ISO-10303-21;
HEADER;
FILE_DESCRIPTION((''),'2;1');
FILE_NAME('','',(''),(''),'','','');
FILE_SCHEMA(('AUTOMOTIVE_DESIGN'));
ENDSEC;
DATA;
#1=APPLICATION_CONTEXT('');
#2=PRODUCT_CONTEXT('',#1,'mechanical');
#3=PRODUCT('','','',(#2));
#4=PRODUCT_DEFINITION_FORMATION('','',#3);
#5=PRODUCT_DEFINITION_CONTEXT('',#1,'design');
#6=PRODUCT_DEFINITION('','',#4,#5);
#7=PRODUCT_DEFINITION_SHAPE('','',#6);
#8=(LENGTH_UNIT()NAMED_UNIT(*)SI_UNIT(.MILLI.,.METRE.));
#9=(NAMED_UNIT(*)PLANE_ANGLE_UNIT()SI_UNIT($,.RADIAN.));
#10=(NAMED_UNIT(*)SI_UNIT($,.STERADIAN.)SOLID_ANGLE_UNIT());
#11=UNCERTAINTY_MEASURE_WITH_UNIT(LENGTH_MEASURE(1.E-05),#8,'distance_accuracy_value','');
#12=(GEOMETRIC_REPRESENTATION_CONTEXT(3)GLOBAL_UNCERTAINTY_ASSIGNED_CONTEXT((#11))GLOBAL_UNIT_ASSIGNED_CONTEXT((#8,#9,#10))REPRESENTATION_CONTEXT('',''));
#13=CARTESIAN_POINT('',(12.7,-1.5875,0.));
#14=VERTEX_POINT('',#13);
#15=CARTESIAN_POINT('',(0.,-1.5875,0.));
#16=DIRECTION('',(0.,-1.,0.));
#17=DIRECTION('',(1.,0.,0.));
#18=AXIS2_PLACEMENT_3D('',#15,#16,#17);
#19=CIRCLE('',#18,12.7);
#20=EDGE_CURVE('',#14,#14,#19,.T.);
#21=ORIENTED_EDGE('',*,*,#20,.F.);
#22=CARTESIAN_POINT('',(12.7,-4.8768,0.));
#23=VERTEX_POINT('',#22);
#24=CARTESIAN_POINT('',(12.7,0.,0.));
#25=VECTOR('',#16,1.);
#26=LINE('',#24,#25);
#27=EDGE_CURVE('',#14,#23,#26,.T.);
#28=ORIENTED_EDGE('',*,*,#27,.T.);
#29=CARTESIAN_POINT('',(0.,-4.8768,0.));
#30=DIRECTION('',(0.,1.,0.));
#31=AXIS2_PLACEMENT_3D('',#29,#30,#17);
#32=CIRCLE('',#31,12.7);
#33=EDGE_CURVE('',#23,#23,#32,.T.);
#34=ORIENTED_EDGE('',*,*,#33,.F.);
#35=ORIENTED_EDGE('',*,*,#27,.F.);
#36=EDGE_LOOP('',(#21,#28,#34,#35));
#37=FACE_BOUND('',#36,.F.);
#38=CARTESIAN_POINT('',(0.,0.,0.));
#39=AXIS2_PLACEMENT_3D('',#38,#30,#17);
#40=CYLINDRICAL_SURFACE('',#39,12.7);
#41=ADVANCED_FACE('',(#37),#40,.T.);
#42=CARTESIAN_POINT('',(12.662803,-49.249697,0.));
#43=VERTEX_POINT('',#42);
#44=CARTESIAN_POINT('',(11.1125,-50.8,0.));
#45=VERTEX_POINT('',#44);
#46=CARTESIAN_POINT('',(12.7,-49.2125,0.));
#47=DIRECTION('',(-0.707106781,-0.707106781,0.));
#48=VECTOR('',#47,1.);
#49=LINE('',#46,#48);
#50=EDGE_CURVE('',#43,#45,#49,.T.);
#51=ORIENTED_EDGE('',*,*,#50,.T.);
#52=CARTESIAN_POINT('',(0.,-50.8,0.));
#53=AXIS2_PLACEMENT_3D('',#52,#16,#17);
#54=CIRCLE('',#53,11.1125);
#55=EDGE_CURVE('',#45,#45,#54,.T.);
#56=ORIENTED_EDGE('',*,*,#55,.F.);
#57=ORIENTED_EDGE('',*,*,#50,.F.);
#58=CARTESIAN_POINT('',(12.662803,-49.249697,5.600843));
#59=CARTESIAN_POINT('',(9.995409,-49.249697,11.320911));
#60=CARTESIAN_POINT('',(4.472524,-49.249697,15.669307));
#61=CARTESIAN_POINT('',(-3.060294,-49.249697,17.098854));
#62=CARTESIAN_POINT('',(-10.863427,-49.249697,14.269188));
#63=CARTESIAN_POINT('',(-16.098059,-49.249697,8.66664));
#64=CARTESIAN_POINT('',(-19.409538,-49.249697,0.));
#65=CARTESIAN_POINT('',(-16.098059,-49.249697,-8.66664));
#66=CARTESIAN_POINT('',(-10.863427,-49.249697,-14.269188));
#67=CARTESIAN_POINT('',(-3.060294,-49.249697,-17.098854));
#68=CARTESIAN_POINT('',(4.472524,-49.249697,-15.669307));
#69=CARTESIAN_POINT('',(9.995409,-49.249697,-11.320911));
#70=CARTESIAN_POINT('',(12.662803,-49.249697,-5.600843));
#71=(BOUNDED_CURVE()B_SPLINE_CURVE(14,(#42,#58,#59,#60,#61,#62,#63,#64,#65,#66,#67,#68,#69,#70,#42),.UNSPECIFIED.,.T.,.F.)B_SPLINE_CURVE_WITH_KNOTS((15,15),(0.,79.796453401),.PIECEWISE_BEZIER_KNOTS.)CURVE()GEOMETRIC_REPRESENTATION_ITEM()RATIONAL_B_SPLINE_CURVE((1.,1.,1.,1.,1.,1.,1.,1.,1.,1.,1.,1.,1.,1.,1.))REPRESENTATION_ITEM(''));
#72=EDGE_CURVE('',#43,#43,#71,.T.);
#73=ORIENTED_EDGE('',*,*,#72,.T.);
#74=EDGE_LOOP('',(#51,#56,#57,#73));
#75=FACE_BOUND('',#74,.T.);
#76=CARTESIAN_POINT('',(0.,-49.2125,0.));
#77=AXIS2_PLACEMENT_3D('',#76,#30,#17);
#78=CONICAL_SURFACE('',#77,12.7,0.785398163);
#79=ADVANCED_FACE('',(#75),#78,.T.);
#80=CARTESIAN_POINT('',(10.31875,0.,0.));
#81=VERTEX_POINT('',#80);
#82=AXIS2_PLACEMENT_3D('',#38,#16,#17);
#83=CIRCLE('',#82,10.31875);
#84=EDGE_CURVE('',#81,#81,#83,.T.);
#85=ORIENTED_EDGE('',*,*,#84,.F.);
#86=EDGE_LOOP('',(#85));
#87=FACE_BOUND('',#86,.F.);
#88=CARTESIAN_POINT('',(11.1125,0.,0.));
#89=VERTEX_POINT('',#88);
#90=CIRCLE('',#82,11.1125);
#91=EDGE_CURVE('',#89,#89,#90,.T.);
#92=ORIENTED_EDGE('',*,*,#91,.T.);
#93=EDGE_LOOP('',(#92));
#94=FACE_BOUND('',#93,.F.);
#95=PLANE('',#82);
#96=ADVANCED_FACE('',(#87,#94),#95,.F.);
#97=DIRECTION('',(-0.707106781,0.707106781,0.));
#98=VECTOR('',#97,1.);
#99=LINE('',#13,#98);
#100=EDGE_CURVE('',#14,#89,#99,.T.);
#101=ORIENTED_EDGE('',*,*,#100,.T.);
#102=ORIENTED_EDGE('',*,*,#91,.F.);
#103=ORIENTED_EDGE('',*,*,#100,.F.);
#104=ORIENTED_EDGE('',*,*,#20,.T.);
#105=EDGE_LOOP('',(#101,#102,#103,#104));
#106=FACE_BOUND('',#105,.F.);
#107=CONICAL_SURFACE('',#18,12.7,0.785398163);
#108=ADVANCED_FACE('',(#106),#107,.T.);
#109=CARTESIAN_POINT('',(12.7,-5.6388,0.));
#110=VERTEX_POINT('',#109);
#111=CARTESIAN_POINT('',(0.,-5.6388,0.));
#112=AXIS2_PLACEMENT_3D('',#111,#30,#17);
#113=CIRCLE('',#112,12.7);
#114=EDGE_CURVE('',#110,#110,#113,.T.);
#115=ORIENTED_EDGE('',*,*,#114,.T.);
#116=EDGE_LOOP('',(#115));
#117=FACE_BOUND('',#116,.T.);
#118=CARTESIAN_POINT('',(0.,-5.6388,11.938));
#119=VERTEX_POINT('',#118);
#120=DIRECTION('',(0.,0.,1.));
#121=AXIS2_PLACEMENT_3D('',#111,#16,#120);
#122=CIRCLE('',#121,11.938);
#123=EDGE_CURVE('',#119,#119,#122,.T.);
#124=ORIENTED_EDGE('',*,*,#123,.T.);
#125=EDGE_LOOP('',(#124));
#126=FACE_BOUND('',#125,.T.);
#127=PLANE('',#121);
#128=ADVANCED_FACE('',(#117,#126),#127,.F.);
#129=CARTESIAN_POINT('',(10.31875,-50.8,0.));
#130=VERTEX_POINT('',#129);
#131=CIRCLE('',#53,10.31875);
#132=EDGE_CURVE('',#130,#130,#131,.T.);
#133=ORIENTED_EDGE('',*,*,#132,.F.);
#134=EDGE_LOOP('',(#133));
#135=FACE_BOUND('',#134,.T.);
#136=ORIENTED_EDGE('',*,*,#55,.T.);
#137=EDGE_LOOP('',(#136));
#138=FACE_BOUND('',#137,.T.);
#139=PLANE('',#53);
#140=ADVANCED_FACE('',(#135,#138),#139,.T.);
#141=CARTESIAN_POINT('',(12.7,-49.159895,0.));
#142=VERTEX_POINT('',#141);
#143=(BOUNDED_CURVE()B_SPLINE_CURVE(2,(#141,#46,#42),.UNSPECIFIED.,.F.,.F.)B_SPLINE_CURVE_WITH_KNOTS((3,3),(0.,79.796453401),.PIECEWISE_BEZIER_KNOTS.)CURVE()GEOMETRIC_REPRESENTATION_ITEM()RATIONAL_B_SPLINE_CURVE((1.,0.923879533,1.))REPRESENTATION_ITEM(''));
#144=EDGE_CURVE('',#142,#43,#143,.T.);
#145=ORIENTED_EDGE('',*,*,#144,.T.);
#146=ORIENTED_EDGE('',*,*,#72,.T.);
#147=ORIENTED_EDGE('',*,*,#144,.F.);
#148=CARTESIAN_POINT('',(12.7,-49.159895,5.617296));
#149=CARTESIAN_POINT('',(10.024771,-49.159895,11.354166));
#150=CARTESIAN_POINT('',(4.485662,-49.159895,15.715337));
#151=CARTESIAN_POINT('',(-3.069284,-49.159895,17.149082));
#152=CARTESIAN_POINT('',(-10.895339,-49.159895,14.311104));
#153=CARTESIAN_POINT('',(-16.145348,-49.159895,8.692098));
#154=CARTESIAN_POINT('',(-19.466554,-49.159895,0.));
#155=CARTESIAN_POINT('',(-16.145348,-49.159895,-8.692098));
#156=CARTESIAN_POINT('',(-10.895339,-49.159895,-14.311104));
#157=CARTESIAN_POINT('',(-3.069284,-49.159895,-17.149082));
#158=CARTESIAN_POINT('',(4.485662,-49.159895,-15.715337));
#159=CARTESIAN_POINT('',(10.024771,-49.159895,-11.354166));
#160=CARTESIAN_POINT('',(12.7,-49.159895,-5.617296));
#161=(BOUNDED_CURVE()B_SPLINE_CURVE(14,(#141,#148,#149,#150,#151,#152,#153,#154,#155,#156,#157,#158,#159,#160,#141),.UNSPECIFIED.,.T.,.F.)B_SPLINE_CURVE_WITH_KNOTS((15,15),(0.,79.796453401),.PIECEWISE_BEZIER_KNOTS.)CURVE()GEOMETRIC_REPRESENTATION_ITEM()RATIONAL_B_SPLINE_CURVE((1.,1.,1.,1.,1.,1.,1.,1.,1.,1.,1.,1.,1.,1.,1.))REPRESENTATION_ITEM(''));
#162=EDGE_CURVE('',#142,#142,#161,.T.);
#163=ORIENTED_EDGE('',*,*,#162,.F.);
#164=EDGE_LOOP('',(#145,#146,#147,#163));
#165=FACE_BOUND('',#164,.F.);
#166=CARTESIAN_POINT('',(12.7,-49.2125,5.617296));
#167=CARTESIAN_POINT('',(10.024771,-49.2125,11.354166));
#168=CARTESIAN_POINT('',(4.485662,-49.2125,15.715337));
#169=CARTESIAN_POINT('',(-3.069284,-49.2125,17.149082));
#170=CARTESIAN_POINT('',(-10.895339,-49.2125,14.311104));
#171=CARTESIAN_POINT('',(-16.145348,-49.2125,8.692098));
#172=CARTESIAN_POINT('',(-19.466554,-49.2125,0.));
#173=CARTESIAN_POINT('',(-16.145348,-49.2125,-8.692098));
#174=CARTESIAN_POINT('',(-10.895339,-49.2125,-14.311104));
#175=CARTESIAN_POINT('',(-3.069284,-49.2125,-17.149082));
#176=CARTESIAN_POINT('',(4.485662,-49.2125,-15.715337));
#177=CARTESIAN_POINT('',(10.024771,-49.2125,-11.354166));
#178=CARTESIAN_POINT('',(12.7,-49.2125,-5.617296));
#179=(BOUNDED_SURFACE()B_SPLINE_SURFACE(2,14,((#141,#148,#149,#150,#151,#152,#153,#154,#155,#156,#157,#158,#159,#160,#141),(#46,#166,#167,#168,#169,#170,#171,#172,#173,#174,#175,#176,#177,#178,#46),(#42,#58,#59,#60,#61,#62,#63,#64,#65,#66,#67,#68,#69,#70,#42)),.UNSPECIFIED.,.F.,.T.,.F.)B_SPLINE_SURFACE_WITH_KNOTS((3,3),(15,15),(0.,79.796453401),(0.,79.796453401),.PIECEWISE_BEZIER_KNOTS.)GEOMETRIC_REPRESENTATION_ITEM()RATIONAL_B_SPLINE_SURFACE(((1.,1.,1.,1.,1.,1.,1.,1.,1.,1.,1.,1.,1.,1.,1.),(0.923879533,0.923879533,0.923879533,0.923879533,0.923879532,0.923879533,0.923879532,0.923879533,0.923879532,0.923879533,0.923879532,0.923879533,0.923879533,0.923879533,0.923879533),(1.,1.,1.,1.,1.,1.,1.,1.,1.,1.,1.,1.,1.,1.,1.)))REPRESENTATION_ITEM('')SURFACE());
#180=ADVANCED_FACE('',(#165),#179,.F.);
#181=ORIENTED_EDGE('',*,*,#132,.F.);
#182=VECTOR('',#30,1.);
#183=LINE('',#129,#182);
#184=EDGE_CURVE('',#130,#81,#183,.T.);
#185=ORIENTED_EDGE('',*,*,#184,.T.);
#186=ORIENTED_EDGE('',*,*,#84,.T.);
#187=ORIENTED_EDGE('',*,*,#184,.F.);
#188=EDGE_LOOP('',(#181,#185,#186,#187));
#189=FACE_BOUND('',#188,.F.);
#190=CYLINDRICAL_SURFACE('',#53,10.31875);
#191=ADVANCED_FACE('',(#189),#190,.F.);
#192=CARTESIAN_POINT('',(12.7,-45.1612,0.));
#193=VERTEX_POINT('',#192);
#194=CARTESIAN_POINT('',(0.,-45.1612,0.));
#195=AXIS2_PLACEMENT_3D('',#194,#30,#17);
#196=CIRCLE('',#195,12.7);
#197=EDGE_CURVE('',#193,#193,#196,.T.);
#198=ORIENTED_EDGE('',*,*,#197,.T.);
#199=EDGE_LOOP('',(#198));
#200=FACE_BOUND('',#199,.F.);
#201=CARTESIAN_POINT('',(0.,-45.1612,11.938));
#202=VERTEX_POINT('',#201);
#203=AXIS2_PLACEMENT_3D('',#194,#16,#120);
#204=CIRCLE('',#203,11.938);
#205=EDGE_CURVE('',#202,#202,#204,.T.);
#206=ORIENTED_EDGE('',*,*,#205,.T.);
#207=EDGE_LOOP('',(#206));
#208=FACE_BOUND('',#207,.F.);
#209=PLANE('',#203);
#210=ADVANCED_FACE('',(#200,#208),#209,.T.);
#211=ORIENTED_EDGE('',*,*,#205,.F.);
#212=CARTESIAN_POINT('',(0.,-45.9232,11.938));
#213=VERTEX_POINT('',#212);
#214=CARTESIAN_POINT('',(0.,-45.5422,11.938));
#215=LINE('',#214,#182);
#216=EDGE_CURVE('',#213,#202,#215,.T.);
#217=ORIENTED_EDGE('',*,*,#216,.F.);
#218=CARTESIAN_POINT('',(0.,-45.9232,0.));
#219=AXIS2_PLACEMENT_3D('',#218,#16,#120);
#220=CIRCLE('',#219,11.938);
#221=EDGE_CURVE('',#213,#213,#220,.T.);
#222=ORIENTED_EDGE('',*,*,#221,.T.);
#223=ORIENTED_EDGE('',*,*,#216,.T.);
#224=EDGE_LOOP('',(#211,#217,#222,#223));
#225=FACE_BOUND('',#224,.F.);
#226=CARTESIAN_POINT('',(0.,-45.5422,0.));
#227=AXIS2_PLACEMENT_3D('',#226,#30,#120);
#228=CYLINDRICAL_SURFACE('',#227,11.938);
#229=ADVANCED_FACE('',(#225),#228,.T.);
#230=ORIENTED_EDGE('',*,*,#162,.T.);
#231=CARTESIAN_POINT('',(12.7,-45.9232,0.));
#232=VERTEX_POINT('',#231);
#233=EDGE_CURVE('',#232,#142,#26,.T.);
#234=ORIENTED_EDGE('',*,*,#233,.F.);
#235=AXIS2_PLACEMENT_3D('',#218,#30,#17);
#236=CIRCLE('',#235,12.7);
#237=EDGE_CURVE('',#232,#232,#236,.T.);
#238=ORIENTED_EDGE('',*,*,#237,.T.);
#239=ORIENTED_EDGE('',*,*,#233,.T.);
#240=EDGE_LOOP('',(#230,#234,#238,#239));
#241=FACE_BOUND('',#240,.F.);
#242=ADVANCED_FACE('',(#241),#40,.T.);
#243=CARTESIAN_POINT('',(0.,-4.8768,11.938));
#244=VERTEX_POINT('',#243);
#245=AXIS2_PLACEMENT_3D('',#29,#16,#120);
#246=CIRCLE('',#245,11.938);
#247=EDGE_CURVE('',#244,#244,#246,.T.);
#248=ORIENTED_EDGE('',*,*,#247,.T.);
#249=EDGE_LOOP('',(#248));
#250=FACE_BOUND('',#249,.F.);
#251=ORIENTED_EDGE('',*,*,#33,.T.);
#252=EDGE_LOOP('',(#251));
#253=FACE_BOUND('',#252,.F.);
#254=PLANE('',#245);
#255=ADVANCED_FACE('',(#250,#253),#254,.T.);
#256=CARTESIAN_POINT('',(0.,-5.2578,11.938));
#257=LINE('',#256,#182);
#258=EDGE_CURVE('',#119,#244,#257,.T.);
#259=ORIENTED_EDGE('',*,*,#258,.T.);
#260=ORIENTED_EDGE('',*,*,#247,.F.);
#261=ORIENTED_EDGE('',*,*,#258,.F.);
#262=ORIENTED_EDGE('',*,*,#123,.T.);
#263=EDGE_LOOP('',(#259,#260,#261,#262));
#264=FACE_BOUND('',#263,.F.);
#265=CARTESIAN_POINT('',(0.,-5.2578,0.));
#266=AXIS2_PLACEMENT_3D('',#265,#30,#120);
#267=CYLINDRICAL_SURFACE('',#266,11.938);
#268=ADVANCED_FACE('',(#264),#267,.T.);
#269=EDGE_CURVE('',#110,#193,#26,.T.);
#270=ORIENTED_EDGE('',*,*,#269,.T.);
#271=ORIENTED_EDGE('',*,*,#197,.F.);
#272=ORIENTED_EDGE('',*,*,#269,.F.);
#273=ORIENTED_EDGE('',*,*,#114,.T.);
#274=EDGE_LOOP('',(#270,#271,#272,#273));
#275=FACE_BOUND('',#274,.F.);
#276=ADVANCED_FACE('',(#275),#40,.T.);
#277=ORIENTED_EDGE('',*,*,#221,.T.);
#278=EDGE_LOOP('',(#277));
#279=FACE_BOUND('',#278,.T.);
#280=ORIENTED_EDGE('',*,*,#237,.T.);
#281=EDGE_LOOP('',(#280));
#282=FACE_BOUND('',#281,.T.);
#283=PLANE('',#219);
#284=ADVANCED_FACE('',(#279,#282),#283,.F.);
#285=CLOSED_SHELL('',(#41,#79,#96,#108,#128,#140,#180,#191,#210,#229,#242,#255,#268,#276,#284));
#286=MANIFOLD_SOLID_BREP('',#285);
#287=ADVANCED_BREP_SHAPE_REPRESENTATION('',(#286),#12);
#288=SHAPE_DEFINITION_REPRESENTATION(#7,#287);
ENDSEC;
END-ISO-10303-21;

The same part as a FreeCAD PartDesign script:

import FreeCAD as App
import Part
import Sketcher
Q = App.Units.Quantity


def edges_at(feature, points):
    """Names of the edges that pass closest to the given points."""
    edges = feature.Shape.Edges
    near = lambda p: min(range(len(edges)), key=lambda i: edges[i].distToShape(Part.Vertex(*p))[0])
    return sorted({f"Edge{near(p) + 1}" for p in points})


def add_polygon(sketch, points):
    """Adds a closed chain of lines whose ends are joined by coincident constraints."""
    first, n = sketch.GeometryCount, len(points)
    for a, b in zip(points, points[1:] + points[:1]):
        sketch.addGeometry(Part.LineSegment(App.Vector(*a, 0), App.Vector(*b, 0)), False)
    for i in range(n):
        sketch.addConstraint(Sketcher.Constraint("Coincident", first + i, 2, first + (i + 1) % n, 1))

doc = App.newDocument("Part")
params = doc.addObject("Spreadsheet::Sheet", "Params")
for row, (alias, value) in enumerate([
    ("sketch1_diameter", "1 in"),
    ("pad1_length", "2 in"),
    ("chamfer_size", "0.0625 in"),
    ("sketch2_width", "0.03 in"),
    ("groove_angle", "360 deg"),
    ("fillet_radius", "0.005 in"),
    ("sketch3_diameter", "0.8125 in"),
], start=1):
    params.set(f"A{row}", alias)
    params.set(f"B{row}", "=" + value)
    params.setAlias(f"B{row}", alias)

body = doc.addObject("PartDesign::Body", "Body")

# Sketch on XZ plane
sketch1 = body.newObject("Sketcher::SketchObject", "Sketch")
sketch1.AttachmentSupport = (doc.getObject("XZ_Plane"), [""])
sketch1.MapMode = "FlatFace"
sketch1.addGeometry(Part.Circle(App.Vector(0, 0, 0), App.Vector(0, 0, 1), 12.7), False)
sketch1.addConstraint([
    Sketcher.Constraint("Coincident", 0, 3, -1, 1),
    Sketcher.Constraint("Diameter", 0, Q("1 in")),
])
sketch1.setExpression("Constraints[1]", "Params.sketch1_diameter")
pad1 = body.newObject("PartDesign::Pad", "Pad")
pad1.Profile = sketch1
pad1.setExpression("Length", "Params.pad1_length")
doc.recompute()

chamfer = body.newObject("PartDesign::Chamfer", "Chamfer")
chamfer.Base = (pad1, edges_at(pad1, [(-12.7, -50.8, 0), (-12.7, 0, 0)]))
chamfer.setExpression("Size", "Params.chamfer_size")

# Sketch on YZ plane
sketch2 = body.newObject("Sketcher::SketchObject", "Sketch001")
sketch2.AttachmentSupport = (doc.getObject("YZ_Plane"), [""])
sketch2.MapMode = "FlatFace"
add_polygon(sketch2, [(-45.9232, 13.7537), (-45.9232, 11.938), (-45.1612, 11.938), (-45.1612, 13.7537)])  # lines 0-3
add_polygon(sketch2, [(-5.6388, 13.7537), (-5.6388, 11.938), (-4.8768, 11.938), (-4.8768, 13.7537)])  # lines 4-7
sketch2.addConstraint([
    Sketcher.Constraint("Vertical", 0),
    Sketcher.Constraint("Horizontal", 1),
    Sketcher.Constraint("Vertical", 2),
    Sketcher.Constraint("Horizontal", 3),
    Sketcher.Constraint("Vertical", 4),
    Sketcher.Constraint("Horizontal", 5),
    Sketcher.Constraint("Vertical", 6),
    Sketcher.Constraint("Horizontal", 7),
    Sketcher.Constraint("Horizontal", 1, 2, 4, 2),
    Sketcher.Constraint("Horizontal", 3, 2, 6, 2),
    Sketcher.Constraint("Equal", 3, 5),
    Sketcher.Constraint("DistanceX", 1, 1, 1, 2, Q("0.03 in")),
    Sketcher.Constraint("DistanceY", -1, 1, 0, 2, Q("0.47 in")),
    Sketcher.Constraint("DistanceX", 0, 2, -1, 1, Q("1.808 in")),
    Sketcher.Constraint("DistanceX", 4, 2, -1, 1, Q("0.222 in")),
    Sketcher.Constraint("DistanceY", 0, 2, 0, 1, 1.8157),
])
sketch2.setExpression("Constraints[19]", "Params.sketch2_width")
groove = body.newObject("PartDesign::Groove", "Groove")
groove.Profile = sketch2
groove.ReferenceAxis = (sketch2, ["H_Axis"])
groove.setExpression("Angle", "Params.groove_angle")
doc.recompute()

fillet = body.newObject("PartDesign::Fillet", "Fillet")
fillet.Base = (groove, edges_at(groove, [(-12.7, -49.212, 0)]))
fillet.setExpression("Radius", "Params.fillet_radius")

# Sketch on XZ plane
sketch3 = body.newObject("Sketcher::SketchObject", "Sketch002")
sketch3.AttachmentSupport = (doc.getObject("XZ_Plane"), [""])
sketch3.MapMode = "FlatFace"
sketch3.AttachmentOffset = App.Placement(App.Vector(0, 0, 2 * 25.4), App.Rotation())
sketch3.addGeometry(Part.Circle(App.Vector(0, 0, 0), App.Vector(0, 0, 1), 10.31875), False)
sketch3.addConstraint([
    Sketcher.Constraint("Coincident", 0, 3, -1, 1),
    Sketcher.Constraint("Diameter", 0, Q("0.8125 in")),
])
sketch3.setExpression("Constraints[1]", "Params.sketch3_diameter")
pocket1 = body.newObject("PartDesign::Pocket", "Pocket")
pocket1.Profile = sketch3
pocket1.Type = "ThroughAll"

doc.recompute()
